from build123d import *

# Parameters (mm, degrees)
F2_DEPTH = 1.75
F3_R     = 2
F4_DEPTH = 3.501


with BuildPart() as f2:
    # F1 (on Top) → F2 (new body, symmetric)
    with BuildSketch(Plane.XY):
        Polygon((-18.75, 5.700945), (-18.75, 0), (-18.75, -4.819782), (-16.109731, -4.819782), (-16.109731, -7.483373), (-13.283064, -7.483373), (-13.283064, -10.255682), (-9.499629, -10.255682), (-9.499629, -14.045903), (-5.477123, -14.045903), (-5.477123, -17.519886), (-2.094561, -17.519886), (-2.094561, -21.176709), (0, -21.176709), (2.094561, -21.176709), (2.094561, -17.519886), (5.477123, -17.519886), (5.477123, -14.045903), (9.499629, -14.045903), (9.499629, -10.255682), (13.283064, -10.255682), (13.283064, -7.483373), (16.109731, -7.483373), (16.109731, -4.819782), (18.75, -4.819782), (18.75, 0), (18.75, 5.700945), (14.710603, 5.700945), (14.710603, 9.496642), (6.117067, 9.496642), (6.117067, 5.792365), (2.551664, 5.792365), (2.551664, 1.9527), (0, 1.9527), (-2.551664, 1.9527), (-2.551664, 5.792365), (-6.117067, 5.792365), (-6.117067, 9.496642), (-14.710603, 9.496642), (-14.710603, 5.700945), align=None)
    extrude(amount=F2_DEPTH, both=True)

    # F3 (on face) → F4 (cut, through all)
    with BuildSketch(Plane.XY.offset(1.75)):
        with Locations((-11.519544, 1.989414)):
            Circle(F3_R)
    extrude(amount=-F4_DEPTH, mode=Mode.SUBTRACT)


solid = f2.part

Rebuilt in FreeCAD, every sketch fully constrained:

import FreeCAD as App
import Part
import Sketcher


def add_polygon(sketch, points):
    """Adds a closed chain of lines whose ends are joined by coincident constraints."""
    first, n = sketch.GeometryCount, len(points)
    for a, b in zip(points, points[1:] + points[:1]):
        sketch.addGeometry(Part.LineSegment(App.Vector(*a, 0), App.Vector(*b, 0)), False)
    for i in range(n):
        sketch.addConstraint(Sketcher.Constraint("Coincident", first + i, 2, first + (i + 1) % n, 1))

doc = App.newDocument("Part")
body = doc.addObject("PartDesign::Body", "Body")

sketch1 = body.newObject("Sketcher::SketchObject", "Sketch")
sketch1.AttachmentSupport = (doc.getObject("XY_Plane"), [""])
sketch1.MapMode = "FlatFace"
add_polygon(sketch1, [(-18.75, 5.700945), (-18.75, -4.819782), (-16.109731, -4.819782), (-16.109731, -7.483373), (-13.283064, -7.483373), (-13.283064, -10.255682), (-9.499629, -10.255682), (-9.499629, -14.045903), (-5.477123, -14.045903), (-5.477123, -17.519886), (-2.094561, -17.519886), (-2.094561, -21.176709), (2.094561, -21.176709), (2.094561, -17.519886), (5.477123, -17.519886), (5.477123, -14.045903), (9.499629, -14.045903), (9.499629, -10.255682), (13.283064, -10.255682), (13.283064, -7.483373), (16.109731, -7.483373), (16.109731, -4.819782), (18.75, -4.819782), (18.75, 5.700945), (14.710603, 5.700945), (14.710603, 9.496642), (6.117067, 9.496642), (6.117067, 5.792365), (2.551664, 5.792365), (2.551664, 1.9527), (-2.551664, 1.9527), (-2.551664, 5.792365), (-6.117067, 5.792365), (-6.117067, 9.496642), (-14.710603, 9.496642), (-14.710603, 5.700945)])
sketch1.addConstraint([
    Sketcher.Constraint("Vertical", 0),
    Sketcher.Constraint("Horizontal", 1),
    Sketcher.Constraint("Vertical", 2),
    Sketcher.Constraint("Horizontal", 3),
    Sketcher.Constraint("Vertical", 4),
    Sketcher.Constraint("Horizontal", 5),
    Sketcher.Constraint("Vertical", 6),
    Sketcher.Constraint("Horizontal", 7),
    Sketcher.Constraint("Vertical", 8),
    Sketcher.Constraint("Horizontal", 9),
    Sketcher.Constraint("Vertical", 10),
    Sketcher.Constraint("Horizontal", 11),
    Sketcher.Constraint("Vertical", 12),
    Sketcher.Constraint("Horizontal", 13),
    Sketcher.Constraint("Vertical", 14),
    Sketcher.Constraint("Horizontal", 15),
    Sketcher.Constraint("Vertical", 16),
    Sketcher.Constraint("Horizontal", 17),
    Sketcher.Constraint("Vertical", 18),
    Sketcher.Constraint("Horizontal", 19),
    Sketcher.Constraint("Vertical", 20),
    Sketcher.Constraint("Horizontal", 21),
    Sketcher.Constraint("Vertical", 22),
    Sketcher.Constraint("Horizontal", 23),
    Sketcher.Constraint("Vertical", 24),
    Sketcher.Constraint("Horizontal", 25),
    Sketcher.Constraint("Vertical", 26),
    Sketcher.Constraint("Horizontal", 27),
    Sketcher.Constraint("Vertical", 28),
    Sketcher.Constraint("Horizontal", 29),
    Sketcher.Constraint("Vertical", 30),
    Sketcher.Constraint("Horizontal", 31),
    Sketcher.Constraint("Vertical", 32),
    Sketcher.Constraint("Horizontal", 33),
    Sketcher.Constraint("Vertical", 34),
    Sketcher.Constraint("Horizontal", 35),
    Sketcher.Constraint("Symmetric", 9, 2, 12, 2, -2),
    Sketcher.Constraint("Symmetric", 7, 2, 14, 2, -2),
    Sketcher.Constraint("Symmetric", 5, 2, 16, 2, -2),
    Sketcher.Constraint("Symmetric", 3, 2, 18, 2, -2),
    Sketcher.Constraint("Symmetric", 1, 2, 20, 2, -2),
    Sketcher.Constraint("Symmetric", 27, 2, 30, 2, -2),
    Sketcher.Constraint("Symmetric", 25, 2, 32, 2, -2),
    Sketcher.Constraint("Symmetric", 23, 2, 34, 2, -2),
    Sketcher.Constraint("Equal", 1, 21),
    Sketcher.Constraint("DistanceX", 0, 2, -1, 1, 18.75),
    Sketcher.Constraint("DistanceX", 1, 1, 1, 2, 2.640269),
    Sketcher.Constraint("DistanceX", 9, 1, 9, 2, 3.382562),
    Sketcher.Constraint("DistanceX", 29, 2, 29, 1, 5.103328),
    Sketcher.Constraint("DistanceY", 2, 2, 2, 1, 2.663591),
    Sketcher.Constraint("DistanceY", 4, 2, 4, 1, 2.772309),
    Sketcher.Constraint("DistanceY", 6, 2, 6, 1, 3.790221),
    Sketcher.Constraint("DistanceY", -1, 1, 28, 2, 1.9527),
    Sketcher.Constraint("DistanceX", 2, 2, 5, 2, 6.610102),
    Sketcher.Constraint("DistanceX", 3, 1, 3, 2, 2.826667),
    Sketcher.Constraint("DistanceX", 7, 1, 7, 2, 4.022506),
    Sketcher.Constraint("DistanceX", 23, 2, 23, 1, 4.039397),
    Sketcher.Constraint("DistanceX", 25, 2, 25, 1, 8.593536),
    Sketcher.Constraint("DistanceY", 0, 2, 0, 1, 10.520727),
    Sketcher.Constraint("DistanceY", 8, 2, 8, 1, 3.473983),
    Sketcher.Constraint("DistanceY", 10, 2, 10, 1, 3.656823),
    Sketcher.Constraint("DistanceY", 24, 1, 24, 2, 3.795697),
    Sketcher.Constraint("DistanceY", 26, 2, 26, 1, 3.704277),
    Sketcher.Constraint("DistanceY", 28, 2, 28, 1, 3.839665),
])
pad1 = body.newObject("PartDesign::Pad", "Pad")
pad1.Profile = sketch1
pad1.Length = 3.5
pad1.Midplane = True

sketch2 = body.newObject("Sketcher::SketchObject", "Sketch001")
sketch2.AttachmentSupport = (doc.getObject("XY_Plane"), [""])
sketch2.MapMode = "FlatFace"
sketch2.AttachmentOffset = App.Placement(App.Vector(0, 0, 1.75), App.Rotation())
sketch2.addGeometry(Part.Circle(App.Vector(-11.519544, 1.989414, 0), App.Vector(0, 0, 1), 2), False)
sketch2.addConstraint([
    Sketcher.Constraint("Diameter", 0, 4.0),
    Sketcher.Constraint("DistanceX", 0, 3, -1, 1, 11.519544),
    Sketcher.Constraint("DistanceY", -1, 1, 0, 3, 1.989414),
])
pocket1 = body.newObject("PartDesign::Pocket", "Pocket")
pocket1.Profile = sketch2
pocket1.Type = "ThroughAll"

doc.recompute()
